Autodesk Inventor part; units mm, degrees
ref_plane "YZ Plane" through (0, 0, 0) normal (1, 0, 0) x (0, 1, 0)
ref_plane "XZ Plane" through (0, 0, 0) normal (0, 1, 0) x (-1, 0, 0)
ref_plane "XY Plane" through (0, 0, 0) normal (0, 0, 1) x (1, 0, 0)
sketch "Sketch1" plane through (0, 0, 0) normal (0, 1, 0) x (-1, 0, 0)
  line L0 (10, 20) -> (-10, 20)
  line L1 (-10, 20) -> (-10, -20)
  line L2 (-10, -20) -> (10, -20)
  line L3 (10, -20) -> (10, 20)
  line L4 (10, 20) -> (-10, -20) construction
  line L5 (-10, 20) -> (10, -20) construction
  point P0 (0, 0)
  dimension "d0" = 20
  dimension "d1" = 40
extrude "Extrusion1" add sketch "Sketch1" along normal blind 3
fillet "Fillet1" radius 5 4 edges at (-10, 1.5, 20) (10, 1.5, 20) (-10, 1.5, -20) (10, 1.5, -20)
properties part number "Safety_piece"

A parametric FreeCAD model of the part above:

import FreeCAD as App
import Part
import Sketcher

V = App.Vector
Q = App.Units.Quantity


def edges_at(feature, points):
    """Names of the edges that pass closest to the given points."""
    edges = feature.Shape.Edges
    near = lambda p: min(range(len(edges)), key=lambda i: edges[i].distToShape(Part.Vertex(*p))[0])
    return sorted({f"Edge{near(p) + 1}" for p in points})

doc = App.newDocument("Part")
params = doc.addObject("Spreadsheet::Sheet", "Params")
for row, (alias, value) in enumerate([
    ("sketch1_width", "20 mm"),
    ("sketch1_height", "40 mm"),
    ("pad1_length", "3 mm"),
    ("fillet_radius", "5 mm"),
], start=1):
    params.set(f"A{row}", alias)
    params.set(f"B{row}", "=" + value)
    params.setAlias(f"B{row}", alias)

body = doc.addObject("PartDesign::Body", "Body")

# Sketch on XZ plane
sketch1 = doc.addObject("Sketcher::SketchObject", "Sketch")
body.addObject(sketch1)
sketch1.AttachmentSupport = (doc.XZ_Plane, [""])
sketch1.MapMode = "FlatFace"
sketch1.addGeometry([
    Part.LineSegment(V(-10, -20, 0), V(-10, 20, 0)),
    Part.LineSegment(V(-10, 20, 0), V(10, 20, 0)),
    Part.LineSegment(V(10, 20, 0), V(10, -20, 0)),
    Part.LineSegment(V(10, -20, 0), V(-10, -20, 0)),
], False)
sketch1.addConstraint([
    Sketcher.Constraint("Coincident", 0, 2, 1, 1),
    Sketcher.Constraint("Coincident", 1, 2, 2, 1),
    Sketcher.Constraint("Coincident", 2, 2, 3, 1),
    Sketcher.Constraint("Coincident", 3, 2, 0, 1),
    Sketcher.Constraint("Vertical", 0),
    Sketcher.Constraint("Horizontal", 1),
    Sketcher.Constraint("Vertical", 2),
    Sketcher.Constraint("Horizontal", 3),
    Sketcher.Constraint("Symmetric", 0, 2, 2, 2, -1, 1),
    Sketcher.Constraint("DistanceX", 1, 1, 1, 2, Q("20 mm")),
    Sketcher.Constraint("DistanceY", 0, 1, 0, 2, Q("40 mm")),
])
sketch1.setExpression("Constraints[9]", "Params.sketch1_width")
sketch1.setExpression("Constraints[10]", "Params.sketch1_height")
pad1 = doc.addObject("PartDesign::Pad", "Pad")
body.addObject(pad1)
pad1.Profile = sketch1
pad1.setExpression("Length", "Params.pad1_length")
pad1.Reversed = True
doc.recompute()

fillet = doc.addObject("PartDesign::Fillet", "Fillet")
body.addObject(fillet)
fillet.Base = (pad1, edges_at(pad1, [
    (-10, 1.5, 20),
    (10, 1.5, 20),
    (-10, 1.5, -20),
    (10, 1.5, -20),
]))
fillet.setExpression("Radius", "Params.fillet_radius")

doc.recompute()
